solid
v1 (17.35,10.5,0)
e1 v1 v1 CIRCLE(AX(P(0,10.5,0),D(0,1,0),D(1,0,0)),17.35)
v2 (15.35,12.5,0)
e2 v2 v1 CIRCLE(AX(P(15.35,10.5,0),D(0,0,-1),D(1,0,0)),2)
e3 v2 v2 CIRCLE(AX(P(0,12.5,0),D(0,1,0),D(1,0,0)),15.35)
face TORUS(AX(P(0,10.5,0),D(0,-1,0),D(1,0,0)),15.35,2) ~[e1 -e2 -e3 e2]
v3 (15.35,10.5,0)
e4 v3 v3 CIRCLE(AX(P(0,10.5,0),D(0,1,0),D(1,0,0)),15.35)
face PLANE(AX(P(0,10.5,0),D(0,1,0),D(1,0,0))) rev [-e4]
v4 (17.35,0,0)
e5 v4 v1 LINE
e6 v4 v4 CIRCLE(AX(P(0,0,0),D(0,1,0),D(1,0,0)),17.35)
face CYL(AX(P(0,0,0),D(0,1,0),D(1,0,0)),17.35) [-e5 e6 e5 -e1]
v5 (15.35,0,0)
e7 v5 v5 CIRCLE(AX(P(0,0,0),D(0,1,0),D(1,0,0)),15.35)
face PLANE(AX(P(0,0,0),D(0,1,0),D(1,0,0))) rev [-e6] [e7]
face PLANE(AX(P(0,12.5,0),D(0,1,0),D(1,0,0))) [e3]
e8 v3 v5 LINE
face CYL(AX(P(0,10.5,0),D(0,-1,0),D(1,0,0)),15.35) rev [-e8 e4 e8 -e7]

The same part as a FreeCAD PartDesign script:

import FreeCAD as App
import Part
import Sketcher

V = App.Vector


def edges_at(feature, points):
    """Names of the edges that pass closest to the given points."""
    edges = feature.Shape.Edges
    near = lambda p: min(range(len(edges)), key=lambda i: edges[i].distToShape(Part.Vertex(*p))[0])
    return sorted({f"Edge{near(p) + 1}" for p in points})


def add_polygon(sketch, points):
    """Adds a closed chain of lines whose ends are joined by coincident constraints."""
    first, n = sketch.GeometryCount, len(points)
    for a, b in zip(points, points[1:] + points[:1]):
        sketch.addGeometry(Part.LineSegment(App.Vector(*a, 0), App.Vector(*b, 0)), False)
    for i in range(n):
        sketch.addConstraint(Sketcher.Constraint("Coincident", first + i, 2, first + (i + 1) % n, 1))

doc = App.newDocument("Part")
body = doc.addObject("PartDesign::Body", "Body")

# Sketch on XY plane
sketch1 = body.newObject("Sketcher::SketchObject", "Sketch")
sketch1.AttachmentSupport = (doc.getObject("XY_Plane"), [""])
sketch1.MapMode = "FlatFace"
add_polygon(sketch1, [(17.4, 12.5), (0, 12.5), (0, 10.5), (15.3, 10.5), (15.3, 0), (17.4, 0)])  # lines 0-5
sketch1.addConstraint(Sketcher.Constraint("Horizontal", 0))
sketch1.addConstraint(Sketcher.Constraint("Vertical", 1))
sketch1.addConstraint(Sketcher.Constraint("Horizontal", 2))
sketch1.addConstraint(Sketcher.Constraint("Vertical", 3))
sketch1.addConstraint(Sketcher.Constraint("Horizontal", 4))
sketch1.addConstraint(Sketcher.Constraint("Vertical", 5))
sketch1.addConstraint(Sketcher.Constraint("PointOnObject", 0, 2, -2))
sketch1.addConstraint(Sketcher.Constraint("PointOnObject", 3, 2, -1))
sketch1.addConstraint(Sketcher.Constraint("Equal", 4, 1))
sketch1.addConstraint(Sketcher.Constraint("DistanceX", 4, 1, 4, 2, 2.0))
sketch1.addConstraint(Sketcher.Constraint("DistanceY", 3, 2, 3, 1, 10.5))
sketch1.addConstraint(Sketcher.Constraint("DistanceX", 0, 2, 0, 1, 17.35))
revolution = body.newObject("PartDesign::Revolution", "Revolution")
revolution.Profile = sketch1
revolution.ReferenceAxis = (sketch1, ["V_Axis"])
revolution.Angle = 360
doc.recompute()

fillet = body.newObject("PartDesign::Fillet", "Fillet")
fillet.Base = (revolution, edges_at(revolution, [(-17.35, 12.5, 0)]))
fillet.Radius = 2

doc.recompute()
